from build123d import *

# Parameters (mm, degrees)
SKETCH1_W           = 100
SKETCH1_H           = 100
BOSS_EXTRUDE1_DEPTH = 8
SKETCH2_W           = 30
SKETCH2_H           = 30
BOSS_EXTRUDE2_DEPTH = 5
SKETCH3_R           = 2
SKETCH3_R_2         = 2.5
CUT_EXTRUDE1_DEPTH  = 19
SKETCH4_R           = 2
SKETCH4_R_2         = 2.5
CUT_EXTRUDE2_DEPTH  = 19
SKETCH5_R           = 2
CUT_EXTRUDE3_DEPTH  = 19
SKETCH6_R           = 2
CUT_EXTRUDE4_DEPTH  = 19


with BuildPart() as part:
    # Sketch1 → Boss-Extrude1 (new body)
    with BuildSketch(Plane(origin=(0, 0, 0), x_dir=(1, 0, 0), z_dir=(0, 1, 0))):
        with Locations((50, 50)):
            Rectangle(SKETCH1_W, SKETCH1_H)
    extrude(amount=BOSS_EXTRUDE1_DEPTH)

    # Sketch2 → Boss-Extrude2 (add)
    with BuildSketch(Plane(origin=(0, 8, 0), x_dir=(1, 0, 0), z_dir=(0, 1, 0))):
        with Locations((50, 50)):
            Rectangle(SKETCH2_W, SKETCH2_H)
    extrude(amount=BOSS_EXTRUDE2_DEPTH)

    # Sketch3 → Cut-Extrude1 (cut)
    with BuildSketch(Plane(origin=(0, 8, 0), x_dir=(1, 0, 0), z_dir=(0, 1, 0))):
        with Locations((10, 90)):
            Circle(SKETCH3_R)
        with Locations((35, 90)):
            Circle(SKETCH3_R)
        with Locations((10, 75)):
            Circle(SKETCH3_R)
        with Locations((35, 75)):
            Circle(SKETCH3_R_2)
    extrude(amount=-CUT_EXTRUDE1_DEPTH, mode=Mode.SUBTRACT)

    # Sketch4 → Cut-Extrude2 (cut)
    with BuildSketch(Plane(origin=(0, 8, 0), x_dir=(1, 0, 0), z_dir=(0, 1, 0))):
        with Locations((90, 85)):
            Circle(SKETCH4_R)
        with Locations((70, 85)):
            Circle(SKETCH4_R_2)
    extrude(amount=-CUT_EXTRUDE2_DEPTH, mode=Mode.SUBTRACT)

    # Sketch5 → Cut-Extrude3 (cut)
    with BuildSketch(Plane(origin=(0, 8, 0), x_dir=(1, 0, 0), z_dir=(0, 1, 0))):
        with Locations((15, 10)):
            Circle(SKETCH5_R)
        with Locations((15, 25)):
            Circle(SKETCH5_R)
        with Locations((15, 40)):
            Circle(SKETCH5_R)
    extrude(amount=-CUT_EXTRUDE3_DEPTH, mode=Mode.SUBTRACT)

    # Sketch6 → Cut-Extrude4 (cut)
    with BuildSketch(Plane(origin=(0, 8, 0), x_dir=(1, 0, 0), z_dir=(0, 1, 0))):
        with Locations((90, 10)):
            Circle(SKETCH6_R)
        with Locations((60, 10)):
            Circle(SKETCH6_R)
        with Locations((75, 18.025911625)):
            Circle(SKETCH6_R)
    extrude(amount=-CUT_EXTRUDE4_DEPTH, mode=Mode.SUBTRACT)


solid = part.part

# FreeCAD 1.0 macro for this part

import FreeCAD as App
import Part
import Sketcher

V = App.Vector
Q = App.Units.Quantity


def add_polygon(sketch, points):
    """Adds a closed chain of lines whose ends are joined by coincident constraints."""
    first, n = sketch.GeometryCount, len(points)
    for a, b in zip(points, points[1:] + points[:1]):
        sketch.addGeometry(Part.LineSegment(App.Vector(*a, 0), App.Vector(*b, 0)), False)
    for i in range(n):
        sketch.addConstraint(Sketcher.Constraint("Coincident", first + i, 2, first + (i + 1) % n, 1))

doc = App.newDocument("Part")
params = doc.addObject("Spreadsheet::Sheet", "Params")
for row, (alias, value) in enumerate([
    ("sketch1_width", "100 mm"),
    ("pad1_length", "8 mm"),
    ("sketch2_width", "30 mm"),
    ("pad2_length", "5 mm"),
    ("sketch3_diameter", "4 mm"),
    ("sketch3_diameter2", "5 mm"),
    ("pocket1_length", "19 mm"),
    ("sketch4_diameter", "4 mm"),
    ("sketch4_diameter2", "5 mm"),
    ("pocket2_length", "19 mm"),
    ("sketch5_diameter", "4 mm"),
    ("pocket3_length", "19 mm"),
    ("sketch6_diameter", "4 mm"),
    ("pocket4_length", "19 mm"),
], start=1):
    params.set(f"A{row}", alias)
    params.set(f"B{row}", "=" + value)
    params.setAlias(f"B{row}", alias)

body = doc.addObject("PartDesign::Body", "Body")

# Sketch on XZ plane
sketch1 = doc.addObject("Sketcher::SketchObject", "Sketch")
body.addObject(sketch1)
sketch1.AttachmentSupport = (doc.XZ_Plane, [""])
sketch1.MapMode = "FlatFace"
add_polygon(sketch1, [(0, -100), (0, 0), (100, 0), (100, -100)])  # lines 0-3
sketch1.addConstraint(Sketcher.Constraint("Vertical", 0))
sketch1.addConstraint(Sketcher.Constraint("Horizontal", 1))
sketch1.addConstraint(Sketcher.Constraint("Vertical", 2))
sketch1.addConstraint(Sketcher.Constraint("Horizontal", 3))
sketch1.addConstraint(Sketcher.Constraint("Coincident", 0, 2, -1, 1))
sketch1.addConstraint(Sketcher.Constraint("Equal", 3, 0))
sketch1.addConstraint(Sketcher.Constraint("DistanceX", 1, 1, 1, 2, Q("100 mm")))
sketch1.setExpression("Constraints[10]", "Params.sketch1_width")
pad1 = doc.addObject("PartDesign::Pad", "Pad")
body.addObject(pad1)
pad1.Profile = sketch1
pad1.setExpression("Length", "Params.pad1_length")
pad1.Reversed = True

# Sketch on XZ plane
sketch2 = doc.addObject("Sketcher::SketchObject", "Sketch001")
body.addObject(sketch2)
sketch2.AttachmentSupport = (doc.XZ_Plane, [""])
sketch2.MapMode = "FlatFace"
sketch2.AttachmentOffset = App.Placement(V(0, 0, -8), App.Rotation())
add_polygon(sketch2, [(35, -65), (35, -35), (65, -35), (65, -65)])  # lines 0-3
sketch2.addConstraint(Sketcher.Constraint("Vertical", 0))
sketch2.addConstraint(Sketcher.Constraint("Horizontal", 1))
sketch2.addConstraint(Sketcher.Constraint("Vertical", 2))
sketch2.addConstraint(Sketcher.Constraint("Horizontal", 3))
sketch2.addConstraint(Sketcher.Constraint("Equal", 3, 0))
sketch2.addConstraint(Sketcher.Constraint("DistanceX", 1, 1, 1, 2, Q("30 mm")))
sketch2.addConstraint(Sketcher.Constraint("DistanceX", -1, 1, 0, 2, Q("35 mm")))
sketch2.addConstraint(Sketcher.Constraint("DistanceY", 0, 2, -1, 1, Q("35 mm")))
sketch2.setExpression("Constraints[9]", "Params.sketch2_width")
pad2 = doc.addObject("PartDesign::Pad", "Pad001")
body.addObject(pad2)
pad2.Profile = sketch2
pad2.setExpression("Length", "Params.pad2_length")
pad2.Reversed = True

# Sketch on XZ plane
sketch3 = doc.addObject("Sketcher::SketchObject", "Sketch002")
body.addObject(sketch3)
sketch3.AttachmentSupport = (doc.XZ_Plane, [""])
sketch3.MapMode = "FlatFace"
sketch3.AttachmentOffset = App.Placement(V(0, 0, -8), App.Rotation())
sketch3.addGeometry(Part.Circle(V(10, -90, 0), V(0, 0, 1), 2), False)
sketch3.addGeometry(Part.Circle(V(35, -90, 0), V(0, 0, 1), 2), False)
sketch3.addGeometry(Part.Circle(V(10, -75, 0), V(0, 0, 1), 2), False)
sketch3.addGeometry(Part.Circle(V(35, -75, 0), V(0, 0, 1), 2.5), False)
sketch3.addConstraint(Sketcher.Constraint("Equal", 0, 1))
sketch3.addConstraint(Sketcher.Constraint("Equal", 1, 2))
sketch3.addConstraint(Sketcher.Constraint("Horizontal", 0, 3, 1, 3))
sketch3.addConstraint(Sketcher.Constraint("Horizontal", 2, 3, 3, 3))
sketch3.addConstraint(Sketcher.Constraint("Vertical", 0, 3, 2, 3))
sketch3.addConstraint(Sketcher.Constraint("Vertical", 1, 3, 3, 3))
sketch3.addConstraint(Sketcher.Constraint("Diameter", 0, Q("4 mm")))
sketch3.addConstraint(Sketcher.Constraint("Diameter", 3, Q("5 mm")))
sketch3.addConstraint(Sketcher.Constraint("DistanceX", -1, 1, 0, 3, Q("10 mm")))
sketch3.addConstraint(Sketcher.Constraint("DistanceY", 0, 3, -1, 1, Q("90 mm")))
sketch3.addConstraint(Sketcher.Constraint("DistanceX", -1, 1, 1, 3, Q("35 mm")))
sketch3.addConstraint(Sketcher.Constraint("DistanceY", 2, 3, -1, 1, Q("75 mm")))
sketch3.setExpression("Constraints[6]", "Params.sketch3_diameter")
sketch3.setExpression("Constraints[7]", "Params.sketch3_diameter2")
pocket1 = doc.addObject("PartDesign::Pocket", "Pocket")
body.addObject(pocket1)
pocket1.Profile = sketch3
pocket1.setExpression("Length", "Params.pocket1_length")
pocket1.Reversed = True

# Sketch on XZ plane
sketch4 = doc.addObject("Sketcher::SketchObject", "Sketch003")
body.addObject(sketch4)
sketch4.AttachmentSupport = (doc.XZ_Plane, [""])
sketch4.MapMode = "FlatFace"
sketch4.AttachmentOffset = App.Placement(V(0, 0, -8), App.Rotation())
sketch4.addGeometry(Part.Circle(V(90, -85, 0), V(0, 0, 1), 2), False)
sketch4.addGeometry(Part.Circle(V(70, -85, 0), V(0, 0, 1), 2.5), False)
sketch4.addConstraint(Sketcher.Constraint("Horizontal", 0, 3, 1, 3))
sketch4.addConstraint(Sketcher.Constraint("Diameter", 0, Q("4 mm")))
sketch4.addConstraint(Sketcher.Constraint("Diameter", 1, Q("5 mm")))
sketch4.addConstraint(Sketcher.Constraint("DistanceX", -1, 1, 0, 3, Q("90 mm")))
sketch4.addConstraint(Sketcher.Constraint("DistanceY", 0, 3, -1, 1, Q("85 mm")))
sketch4.addConstraint(Sketcher.Constraint("DistanceX", -1, 1, 1, 3, Q("70 mm")))
sketch4.setExpression("Constraints[1]", "Params.sketch4_diameter")
sketch4.setExpression("Constraints[2]", "Params.sketch4_diameter2")
pocket2 = doc.addObject("PartDesign::Pocket", "Pocket001")
body.addObject(pocket2)
pocket2.Profile = sketch4
pocket2.setExpression("Length", "Params.pocket2_length")
pocket2.Reversed = True

# Sketch on XZ plane
sketch5 = doc.addObject("Sketcher::SketchObject", "Sketch004")
body.addObject(sketch5)
sketch5.AttachmentSupport = (doc.XZ_Plane, [""])
sketch5.MapMode = "FlatFace"
sketch5.AttachmentOffset = App.Placement(V(0, 0, -8), App.Rotation())
sketch5.addGeometry(Part.Circle(V(15, -10, 0), V(0, 0, 1), 2), False)
sketch5.addGeometry(Part.Circle(V(15, -25, 0), V(0, 0, 1), 2), False)
sketch5.addGeometry(Part.Circle(V(15, -40, 0), V(0, 0, 1), 2), False)
sketch5.addConstraint(Sketcher.Constraint("Equal", 0, 1))
sketch5.addConstraint(Sketcher.Constraint("Equal", 1, 2))
sketch5.addConstraint(Sketcher.Constraint("Vertical", 0, 3, 1, 3))
sketch5.addConstraint(Sketcher.Constraint("Vertical", 1, 3, 2, 3))
sketch5.addConstraint(Sketcher.Constraint("Diameter", 0, Q("4 mm")))
sketch5.addConstraint(Sketcher.Constraint("DistanceX", -1, 1, 0, 3, Q("15 mm")))
sketch5.addConstraint(Sketcher.Constraint("DistanceY", 0, 3, -1, 1, Q("10 mm")))
sketch5.addConstraint(Sketcher.Constraint("DistanceY", 1, 3, -1, 1, Q("25 mm")))
sketch5.addConstraint(Sketcher.Constraint("DistanceY", 2, 3, -1, 1, Q("40 mm")))
sketch5.setExpression("Constraints[4]", "Params.sketch5_diameter")
pocket3 = doc.addObject("PartDesign::Pocket", "Pocket002")
body.addObject(pocket3)
pocket3.Profile = sketch5
pocket3.setExpression("Length", "Params.pocket3_length")
pocket3.Reversed = True

# Sketch on XZ plane
sketch6 = doc.addObject("Sketcher::SketchObject", "Sketch005")
body.addObject(sketch6)
sketch6.AttachmentSupport = (doc.XZ_Plane, [""])
sketch6.MapMode = "FlatFace"
sketch6.AttachmentOffset = App.Placement(V(0, 0, -8), App.Rotation())
sketch6.addGeometry(Part.Circle(V(90, -10, 0), V(0, 0, 1), 2), False)
sketch6.addGeometry(Part.Circle(V(60, -10, 0), V(0, 0, 1), 2), False)
sketch6.addGeometry(Part.Circle(V(75, -18, 0), V(0, 0, 1), 2), False)
sketch6.addConstraint(Sketcher.Constraint("Equal", 0, 1))
sketch6.addConstraint(Sketcher.Constraint("Equal", 1, 2))
sketch6.addConstraint(Sketcher.Constraint("Horizontal", 0, 3, 1, 3))
sketch6.addConstraint(Sketcher.Constraint("Diameter", 0, Q("4 mm")))
sketch6.addConstraint(Sketcher.Constraint("DistanceX", -1, 1, 0, 3, Q("90 mm")))
sketch6.addConstraint(Sketcher.Constraint("DistanceY", 0, 3, -1, 1, Q("10 mm")))
sketch6.addConstraint(Sketcher.Constraint("DistanceX", -1, 1, 1, 3, Q("60 mm")))
sketch6.addConstraint(Sketcher.Constraint("DistanceX", -1, 1, 2, 3, Q("75 mm")))
sketch6.addConstraint(Sketcher.Constraint("DistanceY", 2, 3, -1, 1, Q("18.025912 mm")))
sketch6.setExpression("Constraints[3]", "Params.sketch6_diameter")
pocket4 = doc.addObject("PartDesign::Pocket", "Pocket003")
body.addObject(pocket4)
pocket4.Profile = sketch6
pocket4.setExpression("Length", "Params.pocket4_length")
pocket4.Reversed = True

doc.recompute()
